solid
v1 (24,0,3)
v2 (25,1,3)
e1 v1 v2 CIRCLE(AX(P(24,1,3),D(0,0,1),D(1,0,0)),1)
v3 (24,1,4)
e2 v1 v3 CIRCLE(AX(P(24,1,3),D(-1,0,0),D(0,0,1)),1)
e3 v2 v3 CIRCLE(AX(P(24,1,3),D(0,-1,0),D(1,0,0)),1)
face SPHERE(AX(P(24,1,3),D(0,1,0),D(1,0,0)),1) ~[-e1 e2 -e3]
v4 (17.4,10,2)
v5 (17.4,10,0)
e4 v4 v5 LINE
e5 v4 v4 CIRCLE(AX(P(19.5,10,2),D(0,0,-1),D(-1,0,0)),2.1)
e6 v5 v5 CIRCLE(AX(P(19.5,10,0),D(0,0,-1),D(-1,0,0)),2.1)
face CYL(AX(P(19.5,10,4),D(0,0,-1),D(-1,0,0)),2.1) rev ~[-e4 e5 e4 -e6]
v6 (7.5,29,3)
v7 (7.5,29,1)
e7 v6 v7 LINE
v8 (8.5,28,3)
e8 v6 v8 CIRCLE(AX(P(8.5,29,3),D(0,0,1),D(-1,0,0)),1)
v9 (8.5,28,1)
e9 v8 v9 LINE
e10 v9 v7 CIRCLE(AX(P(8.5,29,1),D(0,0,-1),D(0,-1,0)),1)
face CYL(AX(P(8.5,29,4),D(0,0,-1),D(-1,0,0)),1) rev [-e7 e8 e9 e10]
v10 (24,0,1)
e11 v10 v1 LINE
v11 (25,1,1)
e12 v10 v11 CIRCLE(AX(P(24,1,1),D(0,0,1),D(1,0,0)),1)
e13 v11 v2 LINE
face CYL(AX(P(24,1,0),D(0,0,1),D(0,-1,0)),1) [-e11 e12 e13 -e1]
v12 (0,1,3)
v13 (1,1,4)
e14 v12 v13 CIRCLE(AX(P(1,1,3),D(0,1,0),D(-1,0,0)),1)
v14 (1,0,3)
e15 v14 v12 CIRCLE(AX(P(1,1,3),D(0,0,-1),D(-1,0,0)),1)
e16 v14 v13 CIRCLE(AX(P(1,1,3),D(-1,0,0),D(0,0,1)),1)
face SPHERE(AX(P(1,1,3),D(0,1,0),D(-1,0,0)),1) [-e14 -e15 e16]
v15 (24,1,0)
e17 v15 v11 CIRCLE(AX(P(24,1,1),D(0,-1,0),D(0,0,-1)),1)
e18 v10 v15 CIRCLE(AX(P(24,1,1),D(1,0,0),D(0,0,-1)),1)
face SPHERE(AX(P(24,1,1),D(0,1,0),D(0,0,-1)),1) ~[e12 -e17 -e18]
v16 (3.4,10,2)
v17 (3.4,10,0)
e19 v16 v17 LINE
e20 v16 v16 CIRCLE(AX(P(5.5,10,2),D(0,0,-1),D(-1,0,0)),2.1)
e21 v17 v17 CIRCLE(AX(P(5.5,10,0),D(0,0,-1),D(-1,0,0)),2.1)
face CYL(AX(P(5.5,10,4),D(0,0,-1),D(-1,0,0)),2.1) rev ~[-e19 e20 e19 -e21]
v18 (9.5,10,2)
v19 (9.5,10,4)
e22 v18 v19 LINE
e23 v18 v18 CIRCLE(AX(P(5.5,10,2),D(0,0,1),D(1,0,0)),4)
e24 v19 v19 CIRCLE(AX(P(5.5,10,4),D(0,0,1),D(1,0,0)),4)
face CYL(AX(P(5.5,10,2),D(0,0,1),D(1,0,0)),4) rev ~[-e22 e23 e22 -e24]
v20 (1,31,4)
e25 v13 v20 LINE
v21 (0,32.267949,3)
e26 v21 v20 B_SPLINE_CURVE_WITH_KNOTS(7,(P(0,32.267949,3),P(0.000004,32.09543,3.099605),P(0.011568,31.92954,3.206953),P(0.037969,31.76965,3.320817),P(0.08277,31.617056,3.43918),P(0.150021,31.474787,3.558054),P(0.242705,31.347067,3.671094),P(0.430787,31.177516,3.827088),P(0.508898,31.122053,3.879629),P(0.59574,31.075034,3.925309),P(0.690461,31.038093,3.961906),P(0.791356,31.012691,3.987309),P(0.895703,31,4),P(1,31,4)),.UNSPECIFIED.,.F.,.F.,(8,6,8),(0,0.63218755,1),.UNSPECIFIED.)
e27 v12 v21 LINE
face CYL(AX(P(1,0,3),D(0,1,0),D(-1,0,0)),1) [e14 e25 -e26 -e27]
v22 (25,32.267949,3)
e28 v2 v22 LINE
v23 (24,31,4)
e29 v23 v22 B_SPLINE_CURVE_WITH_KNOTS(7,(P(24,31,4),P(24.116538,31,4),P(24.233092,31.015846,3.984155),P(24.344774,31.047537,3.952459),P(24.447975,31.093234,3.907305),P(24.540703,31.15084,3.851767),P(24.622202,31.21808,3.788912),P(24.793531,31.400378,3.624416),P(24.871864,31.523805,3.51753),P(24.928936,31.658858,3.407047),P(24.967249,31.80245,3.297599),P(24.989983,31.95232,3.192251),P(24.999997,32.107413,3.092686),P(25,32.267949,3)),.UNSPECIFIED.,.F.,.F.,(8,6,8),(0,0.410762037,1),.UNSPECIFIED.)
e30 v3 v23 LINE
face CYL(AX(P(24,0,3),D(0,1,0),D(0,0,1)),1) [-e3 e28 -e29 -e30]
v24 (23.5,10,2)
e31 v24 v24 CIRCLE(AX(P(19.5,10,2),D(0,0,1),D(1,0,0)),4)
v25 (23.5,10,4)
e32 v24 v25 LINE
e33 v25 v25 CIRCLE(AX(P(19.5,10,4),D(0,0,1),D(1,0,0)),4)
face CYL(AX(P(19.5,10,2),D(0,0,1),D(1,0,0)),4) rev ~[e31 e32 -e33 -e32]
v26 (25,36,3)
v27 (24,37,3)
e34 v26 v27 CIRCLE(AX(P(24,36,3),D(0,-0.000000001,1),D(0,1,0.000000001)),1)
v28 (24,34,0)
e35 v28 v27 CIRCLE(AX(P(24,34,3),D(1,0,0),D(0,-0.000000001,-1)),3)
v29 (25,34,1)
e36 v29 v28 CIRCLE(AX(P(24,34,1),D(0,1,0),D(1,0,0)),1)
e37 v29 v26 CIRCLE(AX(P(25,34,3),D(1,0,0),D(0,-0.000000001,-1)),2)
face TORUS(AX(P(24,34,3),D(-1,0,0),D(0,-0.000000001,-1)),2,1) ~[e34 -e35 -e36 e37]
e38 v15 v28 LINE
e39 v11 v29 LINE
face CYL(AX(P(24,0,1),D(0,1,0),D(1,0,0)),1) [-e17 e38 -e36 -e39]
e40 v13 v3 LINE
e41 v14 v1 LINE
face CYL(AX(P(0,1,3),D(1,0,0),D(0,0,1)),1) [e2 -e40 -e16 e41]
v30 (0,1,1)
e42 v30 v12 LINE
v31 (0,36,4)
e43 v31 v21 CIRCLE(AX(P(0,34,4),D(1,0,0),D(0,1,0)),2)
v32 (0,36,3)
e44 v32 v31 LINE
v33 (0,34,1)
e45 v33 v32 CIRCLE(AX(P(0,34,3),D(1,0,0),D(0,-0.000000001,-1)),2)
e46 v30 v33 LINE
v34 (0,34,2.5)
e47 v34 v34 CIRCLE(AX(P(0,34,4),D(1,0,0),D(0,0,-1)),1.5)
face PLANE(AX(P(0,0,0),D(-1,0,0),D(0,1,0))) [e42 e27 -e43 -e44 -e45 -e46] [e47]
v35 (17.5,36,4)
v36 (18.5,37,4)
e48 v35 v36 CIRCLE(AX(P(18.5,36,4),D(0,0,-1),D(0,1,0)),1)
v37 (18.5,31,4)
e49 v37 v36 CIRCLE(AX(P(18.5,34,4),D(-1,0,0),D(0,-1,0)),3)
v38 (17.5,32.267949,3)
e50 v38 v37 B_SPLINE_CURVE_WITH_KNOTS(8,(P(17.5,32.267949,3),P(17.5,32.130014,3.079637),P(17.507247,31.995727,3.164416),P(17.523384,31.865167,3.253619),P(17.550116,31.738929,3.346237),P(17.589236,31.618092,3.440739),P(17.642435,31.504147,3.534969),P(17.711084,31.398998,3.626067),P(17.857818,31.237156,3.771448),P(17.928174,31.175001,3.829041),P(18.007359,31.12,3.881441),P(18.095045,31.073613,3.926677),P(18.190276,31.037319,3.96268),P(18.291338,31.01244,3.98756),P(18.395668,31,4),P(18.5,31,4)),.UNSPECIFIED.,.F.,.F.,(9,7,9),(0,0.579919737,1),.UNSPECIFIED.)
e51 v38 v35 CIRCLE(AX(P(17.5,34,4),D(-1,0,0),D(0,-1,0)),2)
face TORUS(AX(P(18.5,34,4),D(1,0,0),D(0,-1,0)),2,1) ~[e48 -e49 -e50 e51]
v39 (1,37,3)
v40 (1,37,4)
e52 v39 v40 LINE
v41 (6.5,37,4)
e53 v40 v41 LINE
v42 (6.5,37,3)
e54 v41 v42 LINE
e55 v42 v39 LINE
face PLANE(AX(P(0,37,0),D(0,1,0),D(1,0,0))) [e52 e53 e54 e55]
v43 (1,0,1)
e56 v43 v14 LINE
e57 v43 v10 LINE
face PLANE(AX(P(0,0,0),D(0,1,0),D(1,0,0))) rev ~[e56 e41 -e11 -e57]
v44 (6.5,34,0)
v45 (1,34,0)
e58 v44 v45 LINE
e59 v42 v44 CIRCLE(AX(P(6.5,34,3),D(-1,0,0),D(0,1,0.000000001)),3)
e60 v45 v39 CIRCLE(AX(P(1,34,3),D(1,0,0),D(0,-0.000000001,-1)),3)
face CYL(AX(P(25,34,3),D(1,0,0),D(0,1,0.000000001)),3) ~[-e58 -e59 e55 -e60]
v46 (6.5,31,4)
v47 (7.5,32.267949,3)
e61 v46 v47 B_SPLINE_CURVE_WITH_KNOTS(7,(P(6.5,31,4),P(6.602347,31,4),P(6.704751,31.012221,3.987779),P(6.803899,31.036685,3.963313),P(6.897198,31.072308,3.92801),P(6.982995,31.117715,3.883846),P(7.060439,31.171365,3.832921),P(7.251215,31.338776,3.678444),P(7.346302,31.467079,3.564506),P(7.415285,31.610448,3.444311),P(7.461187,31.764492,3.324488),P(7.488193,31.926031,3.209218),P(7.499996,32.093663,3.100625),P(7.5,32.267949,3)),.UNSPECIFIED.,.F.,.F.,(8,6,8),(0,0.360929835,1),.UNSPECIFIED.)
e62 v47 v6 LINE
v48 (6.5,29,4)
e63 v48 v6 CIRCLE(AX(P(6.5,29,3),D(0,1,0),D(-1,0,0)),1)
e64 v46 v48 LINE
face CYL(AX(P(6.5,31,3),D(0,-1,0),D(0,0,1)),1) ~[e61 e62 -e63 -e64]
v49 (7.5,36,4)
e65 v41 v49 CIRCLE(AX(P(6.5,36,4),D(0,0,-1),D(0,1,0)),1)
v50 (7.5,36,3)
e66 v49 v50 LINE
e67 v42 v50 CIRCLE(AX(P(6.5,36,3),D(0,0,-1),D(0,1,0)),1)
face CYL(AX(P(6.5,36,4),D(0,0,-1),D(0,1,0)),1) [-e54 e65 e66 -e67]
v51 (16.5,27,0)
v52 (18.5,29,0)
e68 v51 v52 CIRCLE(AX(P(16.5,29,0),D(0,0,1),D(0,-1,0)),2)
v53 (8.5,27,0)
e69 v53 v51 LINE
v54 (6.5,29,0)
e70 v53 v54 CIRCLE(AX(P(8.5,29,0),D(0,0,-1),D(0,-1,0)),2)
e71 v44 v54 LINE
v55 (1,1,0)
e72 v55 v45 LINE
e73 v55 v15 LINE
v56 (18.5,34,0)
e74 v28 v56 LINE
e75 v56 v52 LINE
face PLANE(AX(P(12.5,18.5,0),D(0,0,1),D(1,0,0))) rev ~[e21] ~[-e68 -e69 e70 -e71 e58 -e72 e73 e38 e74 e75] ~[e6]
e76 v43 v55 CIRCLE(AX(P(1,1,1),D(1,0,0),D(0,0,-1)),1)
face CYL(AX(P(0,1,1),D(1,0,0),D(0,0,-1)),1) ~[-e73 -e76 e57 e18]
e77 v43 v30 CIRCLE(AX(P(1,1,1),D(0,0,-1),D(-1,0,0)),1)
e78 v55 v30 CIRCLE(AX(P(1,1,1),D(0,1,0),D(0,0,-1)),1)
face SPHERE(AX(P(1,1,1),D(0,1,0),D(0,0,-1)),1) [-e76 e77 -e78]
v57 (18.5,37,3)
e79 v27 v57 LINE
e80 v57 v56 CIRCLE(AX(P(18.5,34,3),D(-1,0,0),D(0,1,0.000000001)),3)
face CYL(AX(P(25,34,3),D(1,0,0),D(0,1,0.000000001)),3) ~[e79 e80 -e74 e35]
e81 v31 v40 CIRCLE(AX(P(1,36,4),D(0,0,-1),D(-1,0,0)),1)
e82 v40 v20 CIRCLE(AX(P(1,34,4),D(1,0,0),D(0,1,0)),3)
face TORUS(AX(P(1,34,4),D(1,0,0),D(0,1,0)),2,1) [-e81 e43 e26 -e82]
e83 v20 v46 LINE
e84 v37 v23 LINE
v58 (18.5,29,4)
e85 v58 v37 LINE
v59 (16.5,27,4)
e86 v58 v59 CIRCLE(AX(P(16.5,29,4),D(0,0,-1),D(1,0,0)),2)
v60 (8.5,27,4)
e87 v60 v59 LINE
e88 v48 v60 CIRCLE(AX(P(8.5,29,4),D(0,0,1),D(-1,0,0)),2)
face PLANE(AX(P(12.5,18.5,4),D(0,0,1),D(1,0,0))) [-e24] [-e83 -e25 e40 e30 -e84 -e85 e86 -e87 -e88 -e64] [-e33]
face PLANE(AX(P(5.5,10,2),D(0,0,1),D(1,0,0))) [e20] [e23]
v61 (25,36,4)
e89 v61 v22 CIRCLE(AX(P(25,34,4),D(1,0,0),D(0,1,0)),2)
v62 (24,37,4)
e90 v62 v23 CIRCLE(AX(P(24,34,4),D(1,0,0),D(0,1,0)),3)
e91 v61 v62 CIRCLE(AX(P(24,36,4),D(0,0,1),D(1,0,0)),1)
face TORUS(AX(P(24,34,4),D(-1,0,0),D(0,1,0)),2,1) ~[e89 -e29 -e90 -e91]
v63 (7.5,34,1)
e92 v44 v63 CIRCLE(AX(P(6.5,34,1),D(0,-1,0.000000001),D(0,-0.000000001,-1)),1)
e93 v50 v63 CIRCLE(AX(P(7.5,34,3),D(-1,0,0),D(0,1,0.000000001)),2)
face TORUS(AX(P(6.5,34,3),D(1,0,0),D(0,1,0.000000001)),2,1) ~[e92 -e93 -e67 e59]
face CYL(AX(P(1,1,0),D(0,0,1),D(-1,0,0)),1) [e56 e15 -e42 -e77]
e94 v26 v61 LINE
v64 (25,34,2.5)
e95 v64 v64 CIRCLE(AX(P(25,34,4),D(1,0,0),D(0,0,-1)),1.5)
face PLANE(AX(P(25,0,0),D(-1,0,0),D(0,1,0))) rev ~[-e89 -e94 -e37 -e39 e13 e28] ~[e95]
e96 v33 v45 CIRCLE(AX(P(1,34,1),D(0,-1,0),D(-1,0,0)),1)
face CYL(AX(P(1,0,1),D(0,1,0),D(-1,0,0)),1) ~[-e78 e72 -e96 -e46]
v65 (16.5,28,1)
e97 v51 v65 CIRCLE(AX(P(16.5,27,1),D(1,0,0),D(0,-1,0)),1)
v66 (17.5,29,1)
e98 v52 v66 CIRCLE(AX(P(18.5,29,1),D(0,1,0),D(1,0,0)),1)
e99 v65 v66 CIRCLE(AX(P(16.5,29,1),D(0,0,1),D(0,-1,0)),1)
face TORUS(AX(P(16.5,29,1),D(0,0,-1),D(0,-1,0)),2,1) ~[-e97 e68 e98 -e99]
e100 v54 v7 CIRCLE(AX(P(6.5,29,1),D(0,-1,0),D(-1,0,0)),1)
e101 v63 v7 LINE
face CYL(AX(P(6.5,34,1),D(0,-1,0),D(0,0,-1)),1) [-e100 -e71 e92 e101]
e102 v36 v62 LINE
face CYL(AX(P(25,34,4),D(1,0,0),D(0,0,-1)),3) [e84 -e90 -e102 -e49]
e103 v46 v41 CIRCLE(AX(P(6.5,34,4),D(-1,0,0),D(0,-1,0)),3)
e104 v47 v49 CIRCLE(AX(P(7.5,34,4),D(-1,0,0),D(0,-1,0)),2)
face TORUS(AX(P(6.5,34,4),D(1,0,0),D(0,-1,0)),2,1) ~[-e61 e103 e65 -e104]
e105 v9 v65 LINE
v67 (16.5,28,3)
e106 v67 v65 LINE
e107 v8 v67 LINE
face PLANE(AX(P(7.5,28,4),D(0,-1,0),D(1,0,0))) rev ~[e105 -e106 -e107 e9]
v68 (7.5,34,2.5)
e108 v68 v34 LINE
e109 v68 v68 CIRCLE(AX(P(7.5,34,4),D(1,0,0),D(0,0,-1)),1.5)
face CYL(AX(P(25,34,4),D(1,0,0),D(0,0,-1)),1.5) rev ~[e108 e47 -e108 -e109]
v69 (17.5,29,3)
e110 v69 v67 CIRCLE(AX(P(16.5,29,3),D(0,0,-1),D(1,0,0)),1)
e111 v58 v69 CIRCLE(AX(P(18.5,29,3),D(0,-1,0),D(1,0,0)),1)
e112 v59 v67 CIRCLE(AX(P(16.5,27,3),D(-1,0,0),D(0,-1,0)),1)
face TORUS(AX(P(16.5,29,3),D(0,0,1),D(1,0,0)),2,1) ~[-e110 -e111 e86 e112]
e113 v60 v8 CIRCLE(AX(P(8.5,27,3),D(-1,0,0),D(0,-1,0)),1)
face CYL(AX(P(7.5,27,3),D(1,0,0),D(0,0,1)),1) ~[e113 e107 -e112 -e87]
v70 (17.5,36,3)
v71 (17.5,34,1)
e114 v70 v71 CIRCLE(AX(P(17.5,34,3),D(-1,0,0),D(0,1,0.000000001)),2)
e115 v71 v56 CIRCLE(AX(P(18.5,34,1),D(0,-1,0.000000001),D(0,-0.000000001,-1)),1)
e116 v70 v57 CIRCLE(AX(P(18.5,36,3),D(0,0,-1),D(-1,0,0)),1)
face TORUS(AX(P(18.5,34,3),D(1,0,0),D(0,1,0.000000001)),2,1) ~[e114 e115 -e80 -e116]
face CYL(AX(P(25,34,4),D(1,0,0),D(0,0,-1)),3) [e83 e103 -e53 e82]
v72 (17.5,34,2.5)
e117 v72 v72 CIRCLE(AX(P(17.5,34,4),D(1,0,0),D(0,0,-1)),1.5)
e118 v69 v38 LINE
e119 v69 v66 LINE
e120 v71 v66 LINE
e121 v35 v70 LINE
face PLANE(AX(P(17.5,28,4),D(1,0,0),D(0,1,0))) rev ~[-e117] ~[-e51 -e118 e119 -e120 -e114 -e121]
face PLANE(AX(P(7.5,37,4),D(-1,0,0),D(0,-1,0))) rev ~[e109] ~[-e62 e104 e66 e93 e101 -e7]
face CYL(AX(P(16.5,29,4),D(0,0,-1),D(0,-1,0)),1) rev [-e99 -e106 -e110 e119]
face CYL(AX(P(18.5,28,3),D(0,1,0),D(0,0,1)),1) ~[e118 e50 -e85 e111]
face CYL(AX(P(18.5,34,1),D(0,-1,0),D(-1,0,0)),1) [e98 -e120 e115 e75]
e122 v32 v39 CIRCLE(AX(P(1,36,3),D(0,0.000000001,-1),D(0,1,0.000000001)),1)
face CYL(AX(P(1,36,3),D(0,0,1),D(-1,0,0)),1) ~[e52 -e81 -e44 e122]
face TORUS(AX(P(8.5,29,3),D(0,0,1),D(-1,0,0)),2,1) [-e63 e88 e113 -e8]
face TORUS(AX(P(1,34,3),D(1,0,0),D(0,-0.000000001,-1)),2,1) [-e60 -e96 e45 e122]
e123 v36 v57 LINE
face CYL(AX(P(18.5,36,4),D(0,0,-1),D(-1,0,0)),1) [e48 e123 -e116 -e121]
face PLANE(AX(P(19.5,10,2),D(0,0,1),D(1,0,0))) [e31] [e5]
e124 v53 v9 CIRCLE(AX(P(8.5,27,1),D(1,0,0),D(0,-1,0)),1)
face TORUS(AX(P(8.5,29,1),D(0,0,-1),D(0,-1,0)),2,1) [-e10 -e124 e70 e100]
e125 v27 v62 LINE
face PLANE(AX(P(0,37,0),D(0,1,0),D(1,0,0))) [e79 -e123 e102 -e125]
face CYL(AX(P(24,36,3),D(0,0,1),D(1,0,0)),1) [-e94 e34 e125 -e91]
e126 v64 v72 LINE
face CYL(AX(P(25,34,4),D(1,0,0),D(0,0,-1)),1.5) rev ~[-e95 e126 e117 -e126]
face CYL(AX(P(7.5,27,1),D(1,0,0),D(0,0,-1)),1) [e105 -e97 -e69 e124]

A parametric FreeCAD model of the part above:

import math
import FreeCAD as App
import Part
import Sketcher

V = App.Vector
Q = App.Units.Quantity


def edges_at(feature, points):
    """Names of the edges that pass closest to the given points."""
    edges = feature.Shape.Edges
    near = lambda p: min(range(len(edges)), key=lambda i: edges[i].distToShape(Part.Vertex(*p))[0])
    return sorted({f"Edge{near(p) + 1}" for p in points})

doc = App.newDocument("Part")
body = doc.addObject("PartDesign::Body", "Body")

# Sketch on XY plane
sketch1 = body.newObject("Sketcher::SketchObject", "Sketch")
sketch1.AttachmentSupport = (doc.getObject("XY_Plane"), [""])
sketch1.MapMode = "FlatFace"
sketch1.addGeometry([
    Part.LineSegment(V(0, 37, 0), V(0, 0, 0)),
    Part.LineSegment(V(0, 0, 0), V(25, 0, 0)),
    Part.LineSegment(V(25, 0, 0), V(25, 37, 0)),
    Part.LineSegment(V(25, 37, 0), V(0, 37, 0)),
], False)
sketch1.addConstraint([
    Sketcher.Constraint("Coincident", 0, 2, 1, 1),
    Sketcher.Constraint("Coincident", 1, 2, 2, 1),
    Sketcher.Constraint("Coincident", 2, 2, 3, 1),
    Sketcher.Constraint("Coincident", 3, 2, 0, 1),
    Sketcher.Constraint("Vertical", 0),
    Sketcher.Constraint("Horizontal", 1),
    Sketcher.Constraint("Vertical", 2),
    Sketcher.Constraint("Horizontal", 3),
    Sketcher.Constraint("Coincident", 0, 2, -1, 1),
    Sketcher.Constraint("DistanceX", 1, 1, 1, 2, Q("25 mm")),
    Sketcher.Constraint("DistanceY", 0, 2, 0, 1, Q("37 mm")),
])
pad1 = body.newObject("PartDesign::Pad", "Pad")
pad1.Profile = sketch1
pad1.Length = 4

# Sketch on YZ plane
sketch2 = body.newObject("Sketcher::SketchObject", "Sketch001")
sketch2.AttachmentSupport = (doc.getObject("YZ_Plane"), [""])
sketch2.MapMode = "FlatFace"
sketch2.AttachmentOffset = App.Placement(V(0, 0, 25), App.Rotation())
sketch2.addGeometry(Part.Circle(V(34, 4, 0), V(0, 0, 1), 3), False)
sketch2.addConstraint([
    Sketcher.Constraint("Diameter", 0, Q("6 mm")),
    Sketcher.Constraint("DistanceX", -1, 1, 0, 3, Q("34 mm")),
    Sketcher.Constraint("DistanceY", -1, 1, 0, 3, Q("4 mm")),
])
pad2 = body.newObject("PartDesign::Pad", "Pad001")
pad2.Profile = sketch2
pad2.Length = 25
pad2.Reversed = True

# Sketch on YZ plane
sketch3 = body.newObject("Sketcher::SketchObject", "Sketch002")
sketch3.AttachmentSupport = (doc.getObject("YZ_Plane"), [""])
sketch3.MapMode = "FlatFace"
sketch3.AttachmentOffset = App.Placement(V(0, 0, 25), App.Rotation())
sketch3.addGeometry([
    Part.Circle(V(34, 4, 0), V(0, 0, 1), 1.5),
    Part.LineSegment(V(34, 0, 0), V(37, 0, 0)),
    Part.LineSegment(V(37, 0, 0), V(37, 3, 0)),
    Part.ArcOfCircle(Part.Circle(V(34, 3, 0), V(0, 0, 1), 3), math.radians(-90), math.radians(0)),
], False)
sketch3.addConstraint([
    Sketcher.Constraint("Coincident", 1, 2, 2, 1),
    Sketcher.Constraint("Tangent", 2, 2, 3, 2),
    Sketcher.Constraint("Tangent", 3, 1, 1, 1),
    Sketcher.Constraint("Horizontal", 1),
    Sketcher.Constraint("Vertical", 2),
    Sketcher.Constraint("PointOnObject", 1, 2, -1),
    Sketcher.Constraint("Vertical", 0, 3, 3, 3),
    Sketcher.Constraint("Diameter", 0, Q("3 mm")),
    Sketcher.Constraint("Radius", 3, Q("3 mm")),
    Sketcher.Constraint("DistanceX", -1, 1, 0, 3, Q("34 mm")),
    Sketcher.Constraint("DistanceY", -1, 1, 0, 3, Q("4 mm")),
])
pocket1 = body.newObject("PartDesign::Pocket", "Pocket")
pocket1.Profile = sketch3
pocket1.Length = 25

# Sketch on XY plane
sketch4 = body.newObject("Sketcher::SketchObject", "Sketch003")
sketch4.AttachmentSupport = (doc.getObject("XY_Plane"), [""])
sketch4.MapMode = "FlatFace"
sketch4.AttachmentOffset = App.Placement(V(0, 0, 4), App.Rotation())
sketch4.addGeometry([
    Part.LineSegment(V(8, 37, 0), V(8, 28, 0)),
    Part.LineSegment(V(8, 28, 0), V(18, 28, 0)),
    Part.LineSegment(V(18, 28, 0), V(18, 37, 0)),
    Part.LineSegment(V(18, 37, 0), V(8, 37, 0)),
], False)
sketch4.addConstraint([
    Sketcher.Constraint("Coincident", 0, 2, 1, 1),
    Sketcher.Constraint("Coincident", 1, 2, 2, 1),
    Sketcher.Constraint("Coincident", 2, 2, 3, 1),
    Sketcher.Constraint("Coincident", 3, 2, 0, 1),
    Sketcher.Constraint("Vertical", 0),
    Sketcher.Constraint("Horizontal", 1),
    Sketcher.Constraint("Vertical", 2),
    Sketcher.Constraint("Horizontal", 3),
    Sketcher.Constraint("DistanceX", 1, 1, 1, 2, Q("10 mm")),
    Sketcher.Constraint("DistanceY", 0, 2, 0, 1, Q("9 mm")),
    Sketcher.Constraint("DistanceY", -1, 1, 0, 2, Q("28 mm")),
    Sketcher.Constraint("DistanceX", -1, 1, 0, 2, Q("7.5 mm")),
])
pocket2 = body.newObject("PartDesign::Pocket", "Pocket001")
pocket2.Profile = sketch4
pocket2.Type = "ThroughAll"
pocket2.Midplane = True

# Sketch on XY plane
sketch5 = body.newObject("Sketcher::SketchObject", "Sketch004")
sketch5.AttachmentSupport = (doc.getObject("XY_Plane"), [""])
sketch5.MapMode = "FlatFace"
sketch5.AttachmentOffset = App.Placement(V(0, 0, 4), App.Rotation())
sketch5.addGeometry([
    Part.Circle(V(5.5, 10, 0), V(0, 0, 1), 2.1),
    Part.Circle(V(19.5, 10, 0), V(0, 0, 1), 2.1),
], False)
sketch5.addConstraint([
    Sketcher.Constraint("Equal", 0, 1),
    Sketcher.Constraint("Horizontal", 0, 3, 1, 3),
    Sketcher.Constraint("Diameter", 0, Q("4.2 mm")),
    Sketcher.Constraint("DistanceY", -1, 1, 0, 3, Q("10 mm")),
    Sketcher.Constraint("DistanceX", 0, 3, 1, 3, Q("14 mm")),
    Sketcher.Constraint("DistanceX", -1, 1, 0, 3, Q("5.5 mm")),
])
doc.recompute()
hole = body.newObject("PartDesign::Hole", "Hole")
hole.Profile = sketch5
hole.ThreadType = "None"
hole.Diameter = 4.2
hole.DepthType = "ThroughAll"
hole.HoleCutType = "Counterbore"
hole.HoleCutDiameter = 8
hole.HoleCutDepth = 2
doc.recompute()

fillet = body.newObject("PartDesign::Fillet", "Fillet")
fillet.Base = (hole, edges_at(hole, [
    (25, 15.5, 4),
    (0, 15.5, 4),
    (0, 34, 7),
    (25, 34, 7),
    (0, 17, 0),
    (25, 36.121, 0.879),
    (0, 36.121, 0.879),
    (12.5, 28, 4),
    (7.5, 28, 2),
    (12.5, 28, 0),
    (17.5, 37, 3.5),
    (7.5, 29.5, 4),
    (7.5, 37, 3.5),
    (7.5, 31, 0),
    (7.5, 36.121, 0.879),
    (7.5, 34, 7),
    (17.5, 28, 2),
    (17.5, 31, 0),
    (17.5, 36.121, 0.879),
    (25, 17, 0),
    (17.5, 34, 7),
    (17.5, 29.5, 4),
    (12.5, 0, 0),
    (0, 37, 3.5),
    (25, 37, 3.5),
    (25, 0, 2),
    (0, 0, 2),
    (12.5, 0, 4),
]))
fillet.Radius = 1

doc.recompute()
